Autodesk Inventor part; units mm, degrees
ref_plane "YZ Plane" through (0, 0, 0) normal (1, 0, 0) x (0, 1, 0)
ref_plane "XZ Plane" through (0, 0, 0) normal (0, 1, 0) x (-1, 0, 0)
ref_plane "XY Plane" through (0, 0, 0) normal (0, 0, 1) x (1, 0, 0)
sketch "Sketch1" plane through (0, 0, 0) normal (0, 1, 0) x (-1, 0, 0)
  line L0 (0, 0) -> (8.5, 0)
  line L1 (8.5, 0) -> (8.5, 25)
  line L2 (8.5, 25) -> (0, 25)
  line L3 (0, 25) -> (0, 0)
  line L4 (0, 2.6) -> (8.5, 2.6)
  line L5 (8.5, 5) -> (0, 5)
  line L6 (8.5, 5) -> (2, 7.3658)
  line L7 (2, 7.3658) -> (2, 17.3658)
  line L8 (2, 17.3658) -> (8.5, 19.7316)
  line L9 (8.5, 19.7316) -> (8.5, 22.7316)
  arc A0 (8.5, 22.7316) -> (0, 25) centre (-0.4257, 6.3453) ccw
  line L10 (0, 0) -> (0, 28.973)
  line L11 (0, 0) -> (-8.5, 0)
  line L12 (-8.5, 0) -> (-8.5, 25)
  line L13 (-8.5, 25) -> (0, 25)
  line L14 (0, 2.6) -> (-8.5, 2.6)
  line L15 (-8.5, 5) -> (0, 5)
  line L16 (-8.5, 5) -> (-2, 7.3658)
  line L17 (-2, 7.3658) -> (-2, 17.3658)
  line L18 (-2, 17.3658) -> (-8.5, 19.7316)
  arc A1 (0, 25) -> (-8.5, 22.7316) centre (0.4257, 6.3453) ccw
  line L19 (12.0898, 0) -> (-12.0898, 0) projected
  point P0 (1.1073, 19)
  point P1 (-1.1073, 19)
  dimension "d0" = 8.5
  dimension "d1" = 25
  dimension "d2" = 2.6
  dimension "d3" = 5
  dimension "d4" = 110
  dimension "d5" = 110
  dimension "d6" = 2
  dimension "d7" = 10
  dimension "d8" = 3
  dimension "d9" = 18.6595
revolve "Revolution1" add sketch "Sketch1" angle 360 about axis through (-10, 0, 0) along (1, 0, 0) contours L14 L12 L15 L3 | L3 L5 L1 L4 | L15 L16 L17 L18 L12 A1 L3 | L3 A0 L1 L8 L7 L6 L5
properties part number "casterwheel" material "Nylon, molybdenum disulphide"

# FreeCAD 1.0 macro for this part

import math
import FreeCAD as App
import Part
import Sketcher
from FreeCAD import Vector
Q = App.Units.Quantity

doc = App.newDocument("Part")
body = doc.addObject("PartDesign::Body", "Body")

# Sketch on XZ plane
sketch1 = body.newObject("Sketcher::SketchObject", "Sketch")
sketch1.AttachmentSupport = (doc.getObject("XZ_Plane"), [""])
sketch1.MapMode = "FlatFace"
sketch1.addGeometry(Part.LineSegment(Vector(8.5, 2.6, 0), Vector(-8.5, 2.6, 0)), False)
sketch1.addGeometry(Part.LineSegment(Vector(-8.5, 2.6, 0), Vector(-8.5, 5, 0)), False)
sketch1.addGeometry(Part.LineSegment(Vector(-8.5, 5, 0), Vector(-2, 7.3658, 0)), False)
sketch1.addGeometry(Part.LineSegment(Vector(-2, 7.3658, 0), Vector(-2, 17.3658, 0)), False)
sketch1.addGeometry(Part.LineSegment(Vector(-2, 17.3658, 0), Vector(-8.5, 19.7316, 0)), False)
sketch1.addGeometry(Part.LineSegment(Vector(-8.5, 19.7316, 0), Vector(-8.5, 22.7316, 0)), False)
sketch1.addGeometry(Part.ArcOfCircle(Part.Circle(Vector(0.4257, 6.3453, 0), Vector(0, 0, 1), 18.659554), math.radians(91.307262), math.radians(118.577352)), False)
sketch1.addGeometry(Part.ArcOfCircle(Part.Circle(Vector(-0.4257, 6.3453, 0), Vector(0, 0, 1), 18.659557), math.radians(61.422648), math.radians(88.692738)), False)
sketch1.addGeometry(Part.LineSegment(Vector(8.5, 22.7316, 0), Vector(8.5, 19.7316, 0)), False)
sketch1.addGeometry(Part.LineSegment(Vector(8.5, 19.7316, 0), Vector(2, 17.3658, 0)), False)
sketch1.addGeometry(Part.LineSegment(Vector(2, 17.3658, 0), Vector(2, 7.3658, 0)), False)
sketch1.addGeometry(Part.LineSegment(Vector(2, 7.3658, 0), Vector(8.5, 5, 0)), False)
sketch1.addGeometry(Part.LineSegment(Vector(8.5, 5, 0), Vector(8.5, 2.6, 0)), False)
sketch1.addConstraint(Sketcher.Constraint("Coincident", 0, 2, 1, 1))
sketch1.addConstraint(Sketcher.Constraint("Coincident", 1, 2, 2, 1))
sketch1.addConstraint(Sketcher.Constraint("Coincident", 2, 2, 3, 1))
sketch1.addConstraint(Sketcher.Constraint("Coincident", 3, 2, 4, 1))
sketch1.addConstraint(Sketcher.Constraint("Coincident", 4, 2, 5, 1))
sketch1.addConstraint(Sketcher.Constraint("Coincident", 5, 2, 6, 2))
sketch1.addConstraint(Sketcher.Constraint("Coincident", 6, 1, 7, 2))
sketch1.addConstraint(Sketcher.Constraint("Coincident", 7, 1, 8, 1))
sketch1.addConstraint(Sketcher.Constraint("Coincident", 8, 2, 9, 1))
sketch1.addConstraint(Sketcher.Constraint("Coincident", 9, 2, 10, 1))
sketch1.addConstraint(Sketcher.Constraint("Coincident", 10, 2, 11, 1))
sketch1.addConstraint(Sketcher.Constraint("Coincident", 11, 2, 12, 1))
sketch1.addConstraint(Sketcher.Constraint("Coincident", 12, 2, 0, 1))
sketch1.addConstraint(Sketcher.Constraint("Horizontal", 0))
sketch1.addConstraint(Sketcher.Constraint("Vertical", 1))
sketch1.addConstraint(Sketcher.Constraint("Vertical", 3))
sketch1.addConstraint(Sketcher.Constraint("Vertical", 5))
sketch1.addConstraint(Sketcher.Constraint("Vertical", 8))
sketch1.addConstraint(Sketcher.Constraint("Vertical", 10))
sketch1.addConstraint(Sketcher.Constraint("Vertical", 12))
sketch1.addConstraint(Sketcher.Constraint("Equal", 6, 7))
sketch1.addConstraint(Sketcher.Constraint("Symmetric", 6, 3, 7, 3, -2))
sketch1.addConstraint(Sketcher.Constraint("Symmetric", 4, 2, 8, 2, -2))
sketch1.addConstraint(Sketcher.Constraint("Symmetric", 3, 2, 9, 2, -2))
sketch1.addConstraint(Sketcher.Constraint("Symmetric", 1, 2, 11, 2, -2))
sketch1.addConstraint(Sketcher.Constraint("Parallel", 2, 9))
sketch1.addConstraint(Sketcher.Constraint("Parallel", 4, 11))
sketch1.addConstraint(Sketcher.Constraint("Vertical", 1, 2, 4, 2))
sketch1.addConstraint(Sketcher.Constraint("DistanceY", 3, 1, 3, 2, Q("10 mm")))
sketch1.addConstraint(Sketcher.Constraint("DistanceY", 5, 1, 5, 2, Q("3 mm")))
sketch1.addConstraint(Sketcher.Constraint("DistanceY", -1, 1, 1, 2, Q("5 mm")))
sketch1.addConstraint(Sketcher.Constraint("DistanceX", 2, 2, -1, 1, Q("2 mm")))
sketch1.addConstraint(Sketcher.Constraint("DistanceY", -1, 1, 6, 1, Q("25 mm")))
sketch1.addConstraint(Sketcher.Constraint("DistanceX", 0, 2, -1, 1, Q("8.5 mm")))
sketch1.addConstraint(Sketcher.Constraint("DistanceY", -1, 1, 0, 2, Q("2.6 mm")))
sketch1.addConstraint(Sketcher.Constraint("Radius", 6, Q("18.6596 mm")))
sketch1.addConstraint(Sketcher.Constraint("Angle", 2, Q("20 deg")))
revolution = body.newObject("PartDesign::Revolution", "Revolution")
revolution.Profile = sketch1
revolution.ReferenceAxis = (sketch1, ["H_Axis"])
revolution.Angle = 360

doc.recompute()
